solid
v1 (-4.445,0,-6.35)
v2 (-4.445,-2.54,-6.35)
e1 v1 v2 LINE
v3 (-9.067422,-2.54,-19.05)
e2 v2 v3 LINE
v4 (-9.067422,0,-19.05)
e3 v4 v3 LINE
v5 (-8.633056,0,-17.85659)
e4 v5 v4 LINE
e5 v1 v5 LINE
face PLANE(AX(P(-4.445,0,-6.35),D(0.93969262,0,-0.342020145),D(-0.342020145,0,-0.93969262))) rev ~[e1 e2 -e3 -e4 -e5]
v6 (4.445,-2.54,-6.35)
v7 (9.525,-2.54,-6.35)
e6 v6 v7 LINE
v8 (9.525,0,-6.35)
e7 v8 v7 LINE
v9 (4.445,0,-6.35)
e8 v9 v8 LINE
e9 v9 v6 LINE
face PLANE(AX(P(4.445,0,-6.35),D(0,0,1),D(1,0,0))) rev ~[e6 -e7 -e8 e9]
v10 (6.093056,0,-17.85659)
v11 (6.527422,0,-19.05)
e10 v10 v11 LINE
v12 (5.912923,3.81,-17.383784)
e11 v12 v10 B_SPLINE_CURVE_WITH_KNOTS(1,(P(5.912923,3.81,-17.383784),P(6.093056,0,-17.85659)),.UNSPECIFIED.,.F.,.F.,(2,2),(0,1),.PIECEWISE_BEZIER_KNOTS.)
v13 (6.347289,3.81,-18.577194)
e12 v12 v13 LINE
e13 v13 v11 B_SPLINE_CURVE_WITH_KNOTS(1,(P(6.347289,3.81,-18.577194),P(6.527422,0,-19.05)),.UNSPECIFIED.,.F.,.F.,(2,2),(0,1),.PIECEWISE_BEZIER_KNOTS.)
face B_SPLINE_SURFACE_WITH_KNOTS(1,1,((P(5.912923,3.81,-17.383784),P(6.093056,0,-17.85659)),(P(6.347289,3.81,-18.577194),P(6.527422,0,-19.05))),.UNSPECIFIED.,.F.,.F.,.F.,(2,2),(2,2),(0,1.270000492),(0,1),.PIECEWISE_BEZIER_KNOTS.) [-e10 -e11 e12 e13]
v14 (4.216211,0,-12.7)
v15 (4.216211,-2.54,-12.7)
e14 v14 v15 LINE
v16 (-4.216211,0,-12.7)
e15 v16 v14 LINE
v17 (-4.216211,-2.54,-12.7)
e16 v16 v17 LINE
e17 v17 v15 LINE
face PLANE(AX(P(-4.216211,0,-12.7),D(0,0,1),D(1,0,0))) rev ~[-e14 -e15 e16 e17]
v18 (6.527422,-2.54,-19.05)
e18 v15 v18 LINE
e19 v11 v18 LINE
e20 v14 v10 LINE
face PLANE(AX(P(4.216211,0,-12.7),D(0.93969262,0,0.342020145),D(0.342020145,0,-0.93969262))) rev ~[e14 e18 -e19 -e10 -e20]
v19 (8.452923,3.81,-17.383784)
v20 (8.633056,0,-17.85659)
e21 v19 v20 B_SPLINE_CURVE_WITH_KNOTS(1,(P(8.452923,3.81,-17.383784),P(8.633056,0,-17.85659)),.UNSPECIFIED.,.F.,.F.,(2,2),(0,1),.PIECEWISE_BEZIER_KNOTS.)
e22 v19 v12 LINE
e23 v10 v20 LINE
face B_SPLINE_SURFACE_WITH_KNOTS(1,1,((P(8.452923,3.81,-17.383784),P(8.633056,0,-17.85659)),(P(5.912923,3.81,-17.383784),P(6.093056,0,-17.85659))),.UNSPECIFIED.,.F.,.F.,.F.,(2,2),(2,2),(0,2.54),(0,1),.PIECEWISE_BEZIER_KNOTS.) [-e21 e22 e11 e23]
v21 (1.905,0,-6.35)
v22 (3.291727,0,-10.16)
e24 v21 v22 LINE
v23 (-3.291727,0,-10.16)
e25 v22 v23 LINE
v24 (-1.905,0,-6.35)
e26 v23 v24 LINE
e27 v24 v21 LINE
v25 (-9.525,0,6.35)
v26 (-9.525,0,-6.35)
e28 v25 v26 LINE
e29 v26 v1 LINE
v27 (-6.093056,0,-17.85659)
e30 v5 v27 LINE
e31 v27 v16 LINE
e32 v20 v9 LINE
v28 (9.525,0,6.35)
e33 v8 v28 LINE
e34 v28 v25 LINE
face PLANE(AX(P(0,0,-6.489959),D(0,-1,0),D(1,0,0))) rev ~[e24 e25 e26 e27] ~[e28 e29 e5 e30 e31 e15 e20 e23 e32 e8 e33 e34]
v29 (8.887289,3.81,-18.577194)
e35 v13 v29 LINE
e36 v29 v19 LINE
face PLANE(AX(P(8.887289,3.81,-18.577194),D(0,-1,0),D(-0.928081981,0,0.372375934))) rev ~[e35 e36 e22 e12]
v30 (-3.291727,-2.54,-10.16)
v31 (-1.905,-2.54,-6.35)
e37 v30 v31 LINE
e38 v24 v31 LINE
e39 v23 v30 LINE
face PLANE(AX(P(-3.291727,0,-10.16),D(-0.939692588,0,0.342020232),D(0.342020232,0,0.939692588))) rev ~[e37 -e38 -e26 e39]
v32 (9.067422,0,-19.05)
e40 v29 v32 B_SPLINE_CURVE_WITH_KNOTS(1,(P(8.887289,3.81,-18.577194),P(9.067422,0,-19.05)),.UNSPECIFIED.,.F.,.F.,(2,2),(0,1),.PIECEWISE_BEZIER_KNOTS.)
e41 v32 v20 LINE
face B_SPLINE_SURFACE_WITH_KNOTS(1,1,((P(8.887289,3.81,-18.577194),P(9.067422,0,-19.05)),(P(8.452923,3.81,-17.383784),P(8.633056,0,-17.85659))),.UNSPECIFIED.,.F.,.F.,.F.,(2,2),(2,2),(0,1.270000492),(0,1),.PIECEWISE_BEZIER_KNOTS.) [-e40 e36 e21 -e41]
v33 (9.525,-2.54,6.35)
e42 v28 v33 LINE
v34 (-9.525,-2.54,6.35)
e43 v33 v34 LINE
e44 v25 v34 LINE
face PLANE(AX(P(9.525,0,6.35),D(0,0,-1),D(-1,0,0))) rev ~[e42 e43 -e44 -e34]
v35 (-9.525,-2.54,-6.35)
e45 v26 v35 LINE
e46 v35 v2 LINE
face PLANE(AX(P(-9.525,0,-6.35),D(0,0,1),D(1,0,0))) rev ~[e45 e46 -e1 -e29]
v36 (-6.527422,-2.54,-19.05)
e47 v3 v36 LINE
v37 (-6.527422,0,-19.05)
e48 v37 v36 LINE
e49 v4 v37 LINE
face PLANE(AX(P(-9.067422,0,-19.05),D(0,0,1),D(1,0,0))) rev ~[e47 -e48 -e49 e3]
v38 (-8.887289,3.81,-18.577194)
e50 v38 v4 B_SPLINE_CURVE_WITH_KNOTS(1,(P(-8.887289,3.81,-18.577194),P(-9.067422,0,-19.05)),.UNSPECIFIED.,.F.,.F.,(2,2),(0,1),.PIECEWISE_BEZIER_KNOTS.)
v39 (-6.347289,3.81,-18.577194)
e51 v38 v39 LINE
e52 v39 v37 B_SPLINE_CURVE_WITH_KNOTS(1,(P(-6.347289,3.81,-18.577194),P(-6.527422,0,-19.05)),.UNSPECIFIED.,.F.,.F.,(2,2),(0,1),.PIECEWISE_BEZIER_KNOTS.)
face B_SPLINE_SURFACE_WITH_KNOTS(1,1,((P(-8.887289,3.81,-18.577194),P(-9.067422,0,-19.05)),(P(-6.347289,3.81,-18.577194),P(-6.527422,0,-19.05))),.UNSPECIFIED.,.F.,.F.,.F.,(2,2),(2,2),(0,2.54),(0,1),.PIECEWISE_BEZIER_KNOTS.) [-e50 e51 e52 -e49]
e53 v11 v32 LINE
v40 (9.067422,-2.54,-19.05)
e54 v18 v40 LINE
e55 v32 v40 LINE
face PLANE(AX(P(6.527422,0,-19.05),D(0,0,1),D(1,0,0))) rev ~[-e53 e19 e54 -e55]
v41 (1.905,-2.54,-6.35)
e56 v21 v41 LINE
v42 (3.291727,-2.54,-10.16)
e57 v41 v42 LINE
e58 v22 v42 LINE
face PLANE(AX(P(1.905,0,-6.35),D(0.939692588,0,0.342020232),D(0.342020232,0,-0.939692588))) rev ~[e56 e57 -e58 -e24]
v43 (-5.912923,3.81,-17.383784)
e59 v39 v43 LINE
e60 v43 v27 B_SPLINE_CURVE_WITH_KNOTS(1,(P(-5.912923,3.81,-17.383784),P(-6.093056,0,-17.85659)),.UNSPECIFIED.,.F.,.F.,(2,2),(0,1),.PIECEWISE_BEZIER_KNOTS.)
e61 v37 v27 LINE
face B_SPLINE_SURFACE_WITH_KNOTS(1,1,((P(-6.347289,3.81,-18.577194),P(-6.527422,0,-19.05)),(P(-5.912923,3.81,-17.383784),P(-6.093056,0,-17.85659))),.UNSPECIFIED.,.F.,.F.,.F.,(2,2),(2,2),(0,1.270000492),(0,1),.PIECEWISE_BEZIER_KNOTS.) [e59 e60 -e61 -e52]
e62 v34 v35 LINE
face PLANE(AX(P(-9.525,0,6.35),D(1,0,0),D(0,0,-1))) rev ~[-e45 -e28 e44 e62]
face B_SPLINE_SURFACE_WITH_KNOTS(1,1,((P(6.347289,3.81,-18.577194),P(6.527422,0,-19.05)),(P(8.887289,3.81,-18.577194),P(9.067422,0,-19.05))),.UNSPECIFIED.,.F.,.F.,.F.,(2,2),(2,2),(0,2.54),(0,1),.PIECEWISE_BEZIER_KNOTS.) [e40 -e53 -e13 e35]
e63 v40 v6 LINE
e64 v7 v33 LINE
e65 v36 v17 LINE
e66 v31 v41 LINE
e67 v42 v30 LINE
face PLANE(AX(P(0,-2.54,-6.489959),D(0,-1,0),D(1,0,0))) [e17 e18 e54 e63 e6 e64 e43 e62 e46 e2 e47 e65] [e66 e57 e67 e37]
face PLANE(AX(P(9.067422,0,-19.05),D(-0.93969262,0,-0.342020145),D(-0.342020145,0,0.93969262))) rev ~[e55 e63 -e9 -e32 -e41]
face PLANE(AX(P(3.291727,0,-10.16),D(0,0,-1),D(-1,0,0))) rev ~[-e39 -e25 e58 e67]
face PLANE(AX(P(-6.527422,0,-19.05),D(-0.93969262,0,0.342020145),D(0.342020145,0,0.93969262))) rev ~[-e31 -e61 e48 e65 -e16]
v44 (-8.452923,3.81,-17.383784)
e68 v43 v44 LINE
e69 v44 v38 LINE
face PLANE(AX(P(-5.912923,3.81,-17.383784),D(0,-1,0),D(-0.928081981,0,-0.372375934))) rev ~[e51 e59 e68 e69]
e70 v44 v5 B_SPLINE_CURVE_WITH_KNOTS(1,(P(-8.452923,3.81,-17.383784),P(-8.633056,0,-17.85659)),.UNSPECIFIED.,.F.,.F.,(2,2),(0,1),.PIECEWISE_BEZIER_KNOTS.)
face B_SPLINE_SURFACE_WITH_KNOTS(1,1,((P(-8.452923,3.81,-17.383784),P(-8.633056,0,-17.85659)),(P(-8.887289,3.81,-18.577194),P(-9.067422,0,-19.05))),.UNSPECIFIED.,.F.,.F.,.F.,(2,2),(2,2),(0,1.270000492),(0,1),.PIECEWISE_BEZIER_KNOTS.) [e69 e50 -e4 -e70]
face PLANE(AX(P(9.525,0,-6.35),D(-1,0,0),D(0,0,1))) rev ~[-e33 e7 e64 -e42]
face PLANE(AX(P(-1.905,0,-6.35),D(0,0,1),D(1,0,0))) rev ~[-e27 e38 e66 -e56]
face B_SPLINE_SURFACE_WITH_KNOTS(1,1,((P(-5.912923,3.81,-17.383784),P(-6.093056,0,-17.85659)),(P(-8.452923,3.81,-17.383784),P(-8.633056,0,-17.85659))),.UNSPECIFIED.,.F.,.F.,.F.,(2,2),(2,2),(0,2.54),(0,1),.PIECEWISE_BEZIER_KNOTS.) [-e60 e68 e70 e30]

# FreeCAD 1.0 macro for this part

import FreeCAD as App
import Part
import Sketcher

V = App.Vector
Q = App.Units.Quantity

doc = App.newDocument("Part")
body = doc.addObject("PartDesign::Body", "Body")

sketch1 = body.newObject("Sketcher::SketchObject", "Sketch")
sketch1.AttachmentSupport = (doc.getObject("XZ_Plane"), [""])
sketch1.MapMode = "FlatFace"
sketch1.addGeometry(Part.LineSegment(V(-9.5, 6.3, 0), V(-9.5, -6.3, 0)), False)
sketch1.addGeometry(Part.LineSegment(V(-9.5, -6.3, 0), V(-4.4, -6.3, 0)), False)
sketch1.addGeometry(Part.LineSegment(V(-4.4, -6.3, 0), V(-9.1, -19.1, 0)), False)
sketch1.addGeometry(Part.LineSegment(V(-9.1, -19.1, 0), V(-6.5, -19.1, 0)), False)
sketch1.addGeometry(Part.LineSegment(V(-6.5, -19.1, 0), V(-4.2, -12.7, 0)), False)
sketch1.addGeometry(Part.LineSegment(V(-4.2, -12.7, 0), V(4.2, -12.7, 0)), False)
sketch1.addGeometry(Part.LineSegment(V(4.2, -12.7, 0), V(6.5, -19.1, 0)), False)
sketch1.addGeometry(Part.LineSegment(V(6.5, -19.1, 0), V(9.1, -19.1, 0)), False)
sketch1.addGeometry(Part.LineSegment(V(9.1, -19.1, 0), V(4.4, -6.3, 0)), False)
sketch1.addGeometry(Part.LineSegment(V(4.4, -6.3, 0), V(9.5, -6.3, 0)), False)
sketch1.addGeometry(Part.LineSegment(V(9.5, -6.3, 0), V(9.5, 6.3, 0)), False)
sketch1.addGeometry(Part.LineSegment(V(9.5, 6.3, 0), V(-9.5, 6.3, 0)), False)
sketch1.addGeometry(Part.LineSegment(V(-3.3, -10.2, 0), V(-1.9, -6.3, 0)), False)
sketch1.addGeometry(Part.LineSegment(V(-1.9, -6.3, 0), V(1.9, -6.3, 0)), False)
sketch1.addGeometry(Part.LineSegment(V(1.9, -6.3, 0), V(3.3, -10.2, 0)), False)
sketch1.addGeometry(Part.LineSegment(V(3.3, -10.2, 0), V(-3.3, -10.2, 0)), False)
sketch1.addConstraint(Sketcher.Constraint("Coincident", 0, 2, 1, 1))
sketch1.addConstraint(Sketcher.Constraint("Coincident", 1, 2, 2, 1))
sketch1.addConstraint(Sketcher.Constraint("Coincident", 2, 2, 3, 1))
sketch1.addConstraint(Sketcher.Constraint("Coincident", 3, 2, 4, 1))
sketch1.addConstraint(Sketcher.Constraint("Coincident", 4, 2, 5, 1))
sketch1.addConstraint(Sketcher.Constraint("Coincident", 5, 2, 6, 1))
sketch1.addConstraint(Sketcher.Constraint("Coincident", 6, 2, 7, 1))
sketch1.addConstraint(Sketcher.Constraint("Coincident", 7, 2, 8, 1))
sketch1.addConstraint(Sketcher.Constraint("Coincident", 8, 2, 9, 1))
sketch1.addConstraint(Sketcher.Constraint("Coincident", 9, 2, 10, 1))
sketch1.addConstraint(Sketcher.Constraint("Coincident", 10, 2, 11, 1))
sketch1.addConstraint(Sketcher.Constraint("Coincident", 11, 2, 0, 1))
sketch1.addConstraint(Sketcher.Constraint("Coincident", 12, 2, 13, 1))
sketch1.addConstraint(Sketcher.Constraint("Coincident", 13, 2, 14, 1))
sketch1.addConstraint(Sketcher.Constraint("Coincident", 14, 2, 15, 1))
sketch1.addConstraint(Sketcher.Constraint("Coincident", 15, 2, 12, 1))
sketch1.addConstraint(Sketcher.Constraint("Vertical", 0))
sketch1.addConstraint(Sketcher.Constraint("Horizontal", 1))
sketch1.addConstraint(Sketcher.Constraint("Horizontal", 3))
sketch1.addConstraint(Sketcher.Constraint("Horizontal", 5))
sketch1.addConstraint(Sketcher.Constraint("Horizontal", 7))
sketch1.addConstraint(Sketcher.Constraint("Horizontal", 9))
sketch1.addConstraint(Sketcher.Constraint("Vertical", 10))
sketch1.addConstraint(Sketcher.Constraint("Horizontal", 11))
sketch1.addConstraint(Sketcher.Constraint("Horizontal", 13))
sketch1.addConstraint(Sketcher.Constraint("Horizontal", 15))
sketch1.addConstraint(Sketcher.Constraint("Symmetric", 0, 2, 10, 2, -1, 1))
sketch1.addConstraint(Sketcher.Constraint("Symmetric", 3, 2, 6, 2, -2))
sketch1.addConstraint(Sketcher.Constraint("Symmetric", 1, 2, 8, 2, -2))
sketch1.addConstraint(Sketcher.Constraint("Parallel", 2, 4))
sketch1.addConstraint(Sketcher.Constraint("Parallel", 6, 8))
sketch1.addConstraint(Sketcher.Constraint("Parallel", 4, 12))
sketch1.addConstraint(Sketcher.Constraint("Parallel", 8, 14))
sketch1.addConstraint(Sketcher.Constraint("Horizontal", 9, 2, 12, 2))
sketch1.addConstraint(Sketcher.Constraint("Equal", 3, 7))
sketch1.addConstraint(Sketcher.Constraint("DistanceX", 1, 1, 1, 2, Q("0.2 in")))
sketch1.addConstraint(Sketcher.Constraint("DistanceX", 3, 1, 3, 2, Q("0.1 in")))
sketch1.addConstraint(Sketcher.Constraint("DistanceY", 0, 2, 0, 1, Q("0.5 in")))
sketch1.addConstraint(Sketcher.Constraint("Angle", 2, Q("-110 deg")))
sketch1.addConstraint(Sketcher.Constraint("DistanceX", 11, 2, 11, 1, Q("0.75 in")))
sketch1.addConstraint(Sketcher.Constraint("DistanceX", 13, 1, 13, 2, Q("0.15 in")))
sketch1.addConstraint(Sketcher.Constraint("DistanceY", 4, 2, -1, 1, Q("0.5 in")))
sketch1.addConstraint(Sketcher.Constraint("DistanceY", 14, 2, -1, 1, Q("0.4 in")))
sketch1.addConstraint(Sketcher.Constraint("DistanceY", 2, 2, 0, 2, Q("0.5 in")))
sketch1.addConstraint(Sketcher.Constraint("DistanceX", 1, 2, 12, 2, Q("0.1 in")))
pad1 = body.newObject("PartDesign::Pad", "Pad")
pad1.Profile = sketch1
pad1.Length = Q("0.1 in")

sketch2 = body.newObject("Sketcher::SketchObject", "Sketch001")
sketch2.AttachmentSupport = (doc.getObject("XZ_Plane"), [""])
sketch2.MapMode = "FlatFace"
sketch2.AttachmentOffset = App.Placement(V(0, 0, -0.15 * 25.4), App.Rotation())
sketch2.addGeometry(Part.LineSegment(V(-5.9, -17.4, 0), V(-8.5, -17.4, 0)), False)
sketch2.addGeometry(Part.LineSegment(V(-8.5, -17.4, 0), V(-8.9, -18.6, 0)), False)
sketch2.addGeometry(Part.LineSegment(V(-8.9, -18.6, 0), V(-6.3, -18.6, 0)), False)
sketch2.addGeometry(Part.LineSegment(V(-6.3, -18.6, 0), V(-5.9, -17.4, 0)), False)
sketch2.addConstraint(Sketcher.Constraint("Coincident", 0, 2, 1, 1))
sketch2.addConstraint(Sketcher.Constraint("Coincident", 1, 2, 2, 1))
sketch2.addConstraint(Sketcher.Constraint("Coincident", 2, 2, 3, 1))
sketch2.addConstraint(Sketcher.Constraint("Coincident", 3, 2, 0, 1))
sketch2.addConstraint(Sketcher.Constraint("Horizontal", 0))
sketch2.addConstraint(Sketcher.Constraint("Horizontal", 2))
sketch2.addConstraint(Sketcher.Constraint("Parallel", 1, 3))
sketch2.addConstraint(Sketcher.Constraint("DistanceX", 0, 2, 0, 1, Q("0.1 in")))
sketch2.addConstraint(Sketcher.Constraint("Angle", 1, Q("-110.000012 deg")))
sketch2.addConstraint(Sketcher.Constraint("Distance", 1, Q("0.05 in")))
sketch2.addConstraint(Sketcher.Constraint("DistanceX", 1, 2, -1, 1, 8.887289))
sketch2.addConstraint(Sketcher.Constraint("DistanceY", 0, 2, -1, 1, 17.383784))

sketch3 = body.newObject("Sketcher::SketchObject", "Sketch002")
sketch3.AttachmentSupport = (doc.getObject("XZ_Plane"), [""])
sketch3.MapMode = "FlatFace"
sketch3.addGeometry(Part.LineSegment(V(-8.6, -17.9, 0), V(-6.1, -17.9, 0)), False)
sketch3.addGeometry(Part.LineSegment(V(-6.1, -17.9, 0), V(-6.5, -19.1, 0)), False)
sketch3.addGeometry(Part.LineSegment(V(-6.5, -19.1, 0), V(-9.1, -19.1, 0)), False)
sketch3.addGeometry(Part.LineSegment(V(-9.1, -19.1, 0), V(-8.6, -17.9, 0)), False)
sketch3.addConstraint(Sketcher.Constraint("Coincident", 0, 2, 1, 1))
sketch3.addConstraint(Sketcher.Constraint("Coincident", 1, 2, 2, 1))
sketch3.addConstraint(Sketcher.Constraint("Coincident", 2, 2, 3, 1))
sketch3.addConstraint(Sketcher.Constraint("Coincident", 3, 2, 0, 1))
sketch3.addConstraint(Sketcher.Constraint("Horizontal", 0))
sketch3.addConstraint(Sketcher.Constraint("Horizontal", 2))
sketch3.addConstraint(Sketcher.Constraint("Parallel", 1, 3))
sketch3.addConstraint(Sketcher.Constraint("DistanceX", 0, 1, 0, 2, Q("0.1 in")))
sketch3.addConstraint(Sketcher.Constraint("Angle", 1, Q("-110.000012 deg")))
sketch3.addConstraint(Sketcher.Constraint("Distance", 1, Q("0.05 in")))
sketch3.addConstraint(Sketcher.Constraint("DistanceY", 1, 2, -1, 1, Q("0.75 in")))
sketch3.addConstraint(Sketcher.Constraint("DistanceX", 1, 2, -1, 1, 6.527422))

additiveloft = body.newObject("PartDesign::AdditiveLoft", "AdditiveLoft")
additiveloft.Profile = sketch2
additiveloft.Sections = [sketch3]

sketch4 = body.newObject("Sketcher::SketchObject", "Sketch003")
sketch4.AttachmentSupport = (doc.getObject("XZ_Plane"), [""])
sketch4.MapMode = "FlatFace"
sketch4.AttachmentOffset = App.Placement(V(0, 0, -0.15 * 25.4), App.Rotation())
sketch4.addGeometry(Part.LineSegment(V(8.9, -18.6, 0), V(8.5, -17.4, 0)), False)
sketch4.addGeometry(Part.LineSegment(V(8.5, -17.4, 0), V(5.9, -17.4, 0)), False)
sketch4.addGeometry(Part.LineSegment(V(5.9, -17.4, 0), V(6.3, -18.6, 0)), False)
sketch4.addGeometry(Part.LineSegment(V(6.3, -18.6, 0), V(8.9, -18.6, 0)), False)
sketch4.addConstraint(Sketcher.Constraint("Coincident", 0, 2, 1, 1))
sketch4.addConstraint(Sketcher.Constraint("Coincident", 1, 2, 2, 1))
sketch4.addConstraint(Sketcher.Constraint("Coincident", 2, 2, 3, 1))
sketch4.addConstraint(Sketcher.Constraint("Coincident", 3, 2, 0, 1))
sketch4.addConstraint(Sketcher.Constraint("Horizontal", 1))
sketch4.addConstraint(Sketcher.Constraint("Horizontal", 3))
sketch4.addConstraint(Sketcher.Constraint("Parallel", 0, 2))
sketch4.addConstraint(Sketcher.Constraint("DistanceX", 1, 2, 1, 1, Q("0.1 in")))
sketch4.addConstraint(Sketcher.Constraint("Angle", 0, Q("110.000012 deg")))
sketch4.addConstraint(Sketcher.Constraint("Distance", 0, Q("0.05 in")))
sketch4.addConstraint(Sketcher.Constraint("DistanceX", -1, 1, 2, 2, 6.347289))
sketch4.addConstraint(Sketcher.Constraint("DistanceY", 0, 2, -1, 1, 17.383784))

sketch5 = body.newObject("Sketcher::SketchObject", "Sketch004")
sketch5.AttachmentSupport = (doc.getObject("XZ_Plane"), [""])
sketch5.MapMode = "FlatFace"
sketch5.addGeometry(Part.LineSegment(V(8.6, -17.9, 0), V(9.1, -19.1, 0)), False)
sketch5.addGeometry(Part.LineSegment(V(9.1, -19.1, 0), V(6.5, -19.1, 0)), False)
sketch5.addGeometry(Part.LineSegment(V(6.5, -19.1, 0), V(6.1, -17.9, 0)), False)
sketch5.addGeometry(Part.LineSegment(V(6.1, -17.9, 0), V(8.6, -17.9, 0)), False)
sketch5.addConstraint(Sketcher.Constraint("Coincident", 0, 2, 1, 1))
sketch5.addConstraint(Sketcher.Constraint("Coincident", 1, 2, 2, 1))
sketch5.addConstraint(Sketcher.Constraint("Coincident", 2, 2, 3, 1))
sketch5.addConstraint(Sketcher.Constraint("Coincident", 3, 2, 0, 1))
sketch5.addConstraint(Sketcher.Constraint("Horizontal", 1))
sketch5.addConstraint(Sketcher.Constraint("Horizontal", 3))
sketch5.addConstraint(Sketcher.Constraint("Parallel", 0, 2))
sketch5.addConstraint(Sketcher.Constraint("DistanceX", 1, 2, 1, 1, Q("0.1 in")))
sketch5.addConstraint(Sketcher.Constraint("Angle", 0, Q("-69.999988 deg")))
sketch5.addConstraint(Sketcher.Constraint("Distance", 0, Q("0.05 in")))
sketch5.addConstraint(Sketcher.Constraint("DistanceY", 0, 2, -1, 1, Q("0.75 in")))
sketch5.addConstraint(Sketcher.Constraint("DistanceX", -1, 1, 1, 2, 6.527422))

additiveloft2 = body.newObject("PartDesign::AdditiveLoft", "AdditiveLoft001")
additiveloft2.Profile = sketch4
additiveloft2.Sections = [sketch5]

doc.recompute()
